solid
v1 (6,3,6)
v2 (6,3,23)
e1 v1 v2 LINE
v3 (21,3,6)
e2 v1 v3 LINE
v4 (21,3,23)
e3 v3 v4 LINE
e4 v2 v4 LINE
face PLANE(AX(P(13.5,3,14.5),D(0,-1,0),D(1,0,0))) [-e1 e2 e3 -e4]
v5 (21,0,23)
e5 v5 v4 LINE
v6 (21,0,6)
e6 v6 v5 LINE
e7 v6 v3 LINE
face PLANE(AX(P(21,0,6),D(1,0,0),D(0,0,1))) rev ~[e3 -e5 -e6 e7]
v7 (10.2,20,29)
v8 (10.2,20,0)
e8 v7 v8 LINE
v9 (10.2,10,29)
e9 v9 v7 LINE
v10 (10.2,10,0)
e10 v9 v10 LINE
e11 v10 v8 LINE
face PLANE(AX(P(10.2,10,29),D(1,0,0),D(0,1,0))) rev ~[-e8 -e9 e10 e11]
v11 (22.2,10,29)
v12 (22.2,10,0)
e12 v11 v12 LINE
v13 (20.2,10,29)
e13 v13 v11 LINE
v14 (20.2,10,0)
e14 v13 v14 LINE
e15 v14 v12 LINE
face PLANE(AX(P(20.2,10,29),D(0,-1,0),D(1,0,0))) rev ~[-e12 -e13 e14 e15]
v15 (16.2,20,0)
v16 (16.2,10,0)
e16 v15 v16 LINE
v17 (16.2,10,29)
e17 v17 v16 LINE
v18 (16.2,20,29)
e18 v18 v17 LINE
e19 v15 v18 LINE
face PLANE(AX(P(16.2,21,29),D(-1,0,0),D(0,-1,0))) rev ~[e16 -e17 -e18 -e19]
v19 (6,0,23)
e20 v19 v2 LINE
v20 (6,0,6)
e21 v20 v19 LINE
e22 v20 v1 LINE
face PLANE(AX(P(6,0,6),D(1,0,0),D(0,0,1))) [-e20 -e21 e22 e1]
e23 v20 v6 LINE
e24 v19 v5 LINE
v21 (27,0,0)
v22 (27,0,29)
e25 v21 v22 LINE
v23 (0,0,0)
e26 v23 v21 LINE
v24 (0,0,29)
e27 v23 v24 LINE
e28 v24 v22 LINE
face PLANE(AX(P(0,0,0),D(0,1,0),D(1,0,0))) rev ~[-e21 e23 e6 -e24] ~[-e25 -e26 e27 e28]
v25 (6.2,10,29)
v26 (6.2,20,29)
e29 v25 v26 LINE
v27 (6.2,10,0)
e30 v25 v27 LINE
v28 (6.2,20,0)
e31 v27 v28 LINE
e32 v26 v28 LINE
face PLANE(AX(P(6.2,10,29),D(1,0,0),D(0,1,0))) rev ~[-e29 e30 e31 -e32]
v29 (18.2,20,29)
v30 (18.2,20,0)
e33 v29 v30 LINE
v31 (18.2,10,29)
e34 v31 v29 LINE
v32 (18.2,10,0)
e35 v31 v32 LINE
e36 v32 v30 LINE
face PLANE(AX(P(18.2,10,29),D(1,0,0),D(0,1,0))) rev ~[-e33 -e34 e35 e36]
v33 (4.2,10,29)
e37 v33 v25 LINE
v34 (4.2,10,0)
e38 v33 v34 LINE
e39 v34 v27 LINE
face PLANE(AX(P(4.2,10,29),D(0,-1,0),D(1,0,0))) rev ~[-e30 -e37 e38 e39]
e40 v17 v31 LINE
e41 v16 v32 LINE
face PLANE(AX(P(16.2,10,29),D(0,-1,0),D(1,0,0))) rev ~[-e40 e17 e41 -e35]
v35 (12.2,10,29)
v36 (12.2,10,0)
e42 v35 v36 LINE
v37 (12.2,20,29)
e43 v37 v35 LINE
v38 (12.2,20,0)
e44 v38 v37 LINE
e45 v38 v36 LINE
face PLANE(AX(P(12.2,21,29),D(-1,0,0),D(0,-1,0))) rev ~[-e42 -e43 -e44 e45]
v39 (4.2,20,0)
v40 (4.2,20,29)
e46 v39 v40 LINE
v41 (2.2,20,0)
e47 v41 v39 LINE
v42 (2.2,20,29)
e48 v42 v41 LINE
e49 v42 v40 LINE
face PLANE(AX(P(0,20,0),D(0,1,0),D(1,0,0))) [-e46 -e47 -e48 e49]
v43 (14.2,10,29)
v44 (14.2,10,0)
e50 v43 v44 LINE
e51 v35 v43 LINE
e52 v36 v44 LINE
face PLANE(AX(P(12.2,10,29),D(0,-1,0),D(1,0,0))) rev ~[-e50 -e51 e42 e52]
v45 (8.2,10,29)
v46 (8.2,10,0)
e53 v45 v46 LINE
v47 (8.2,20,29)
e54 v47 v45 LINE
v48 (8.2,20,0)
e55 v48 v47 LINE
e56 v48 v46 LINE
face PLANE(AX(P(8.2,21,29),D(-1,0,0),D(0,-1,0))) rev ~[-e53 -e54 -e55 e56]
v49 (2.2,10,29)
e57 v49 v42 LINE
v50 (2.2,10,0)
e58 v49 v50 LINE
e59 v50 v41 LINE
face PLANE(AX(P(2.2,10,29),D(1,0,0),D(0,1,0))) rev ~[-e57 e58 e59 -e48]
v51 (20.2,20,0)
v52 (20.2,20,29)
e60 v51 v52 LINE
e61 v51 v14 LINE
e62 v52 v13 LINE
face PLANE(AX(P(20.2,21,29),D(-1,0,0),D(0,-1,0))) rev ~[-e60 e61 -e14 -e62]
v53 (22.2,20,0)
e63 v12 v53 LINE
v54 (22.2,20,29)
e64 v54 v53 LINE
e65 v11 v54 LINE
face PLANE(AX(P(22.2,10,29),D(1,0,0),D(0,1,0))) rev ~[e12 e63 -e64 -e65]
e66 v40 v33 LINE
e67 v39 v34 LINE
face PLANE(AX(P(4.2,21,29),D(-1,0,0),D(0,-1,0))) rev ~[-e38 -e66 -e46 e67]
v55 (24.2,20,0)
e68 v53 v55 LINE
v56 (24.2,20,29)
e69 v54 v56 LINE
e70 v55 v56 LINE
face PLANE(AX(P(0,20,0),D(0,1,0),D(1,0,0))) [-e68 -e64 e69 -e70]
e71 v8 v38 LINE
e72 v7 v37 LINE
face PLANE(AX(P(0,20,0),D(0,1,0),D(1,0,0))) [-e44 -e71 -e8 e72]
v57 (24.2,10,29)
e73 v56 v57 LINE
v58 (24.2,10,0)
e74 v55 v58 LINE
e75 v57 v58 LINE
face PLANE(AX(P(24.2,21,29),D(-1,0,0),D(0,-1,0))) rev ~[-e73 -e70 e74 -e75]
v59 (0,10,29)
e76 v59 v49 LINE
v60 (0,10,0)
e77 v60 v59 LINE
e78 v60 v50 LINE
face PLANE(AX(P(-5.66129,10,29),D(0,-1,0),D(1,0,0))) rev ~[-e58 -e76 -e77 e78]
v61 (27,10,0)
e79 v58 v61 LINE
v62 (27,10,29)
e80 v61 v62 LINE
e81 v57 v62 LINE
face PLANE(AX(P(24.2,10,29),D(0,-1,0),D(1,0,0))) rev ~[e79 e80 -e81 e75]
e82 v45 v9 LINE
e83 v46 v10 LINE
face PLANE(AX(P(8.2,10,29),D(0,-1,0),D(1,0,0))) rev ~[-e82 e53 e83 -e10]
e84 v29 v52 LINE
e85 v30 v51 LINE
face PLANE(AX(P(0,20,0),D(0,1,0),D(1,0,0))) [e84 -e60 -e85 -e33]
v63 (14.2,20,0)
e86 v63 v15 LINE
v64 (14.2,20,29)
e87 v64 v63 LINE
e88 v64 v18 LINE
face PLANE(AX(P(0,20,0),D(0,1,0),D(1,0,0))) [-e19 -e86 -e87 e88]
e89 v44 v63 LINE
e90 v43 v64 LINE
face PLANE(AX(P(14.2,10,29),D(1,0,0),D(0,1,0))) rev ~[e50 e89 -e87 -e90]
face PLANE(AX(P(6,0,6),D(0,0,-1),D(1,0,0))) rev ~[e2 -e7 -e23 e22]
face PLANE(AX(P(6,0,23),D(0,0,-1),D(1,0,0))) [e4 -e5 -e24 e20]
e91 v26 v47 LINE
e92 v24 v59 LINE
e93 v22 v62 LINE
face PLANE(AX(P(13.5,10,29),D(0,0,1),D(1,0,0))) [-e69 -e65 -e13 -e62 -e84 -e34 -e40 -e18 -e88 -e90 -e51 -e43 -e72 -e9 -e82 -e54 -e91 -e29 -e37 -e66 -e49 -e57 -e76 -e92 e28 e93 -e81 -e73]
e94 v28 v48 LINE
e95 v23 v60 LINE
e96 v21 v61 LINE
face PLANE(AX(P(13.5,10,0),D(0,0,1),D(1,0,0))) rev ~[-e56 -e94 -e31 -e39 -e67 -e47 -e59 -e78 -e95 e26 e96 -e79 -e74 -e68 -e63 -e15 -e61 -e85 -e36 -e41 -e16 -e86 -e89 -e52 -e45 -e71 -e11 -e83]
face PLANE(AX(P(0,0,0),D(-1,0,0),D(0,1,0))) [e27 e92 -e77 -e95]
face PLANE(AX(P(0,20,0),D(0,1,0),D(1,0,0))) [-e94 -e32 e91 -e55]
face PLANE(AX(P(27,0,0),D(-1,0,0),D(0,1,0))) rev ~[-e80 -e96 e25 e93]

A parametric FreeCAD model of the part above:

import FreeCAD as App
import Part
import Sketcher
from FreeCAD import Vector
Q = App.Units.Quantity


def add_polygon(sketch, points):
    """Adds a closed chain of lines whose ends are joined by coincident constraints."""
    first, n = sketch.GeometryCount, len(points)
    for a, b in zip(points, points[1:] + points[:1]):
        sketch.addGeometry(Part.LineSegment(App.Vector(*a, 0), App.Vector(*b, 0)), False)
    for i in range(n):
        sketch.addConstraint(Sketcher.Constraint("Coincident", first + i, 2, first + (i + 1) % n, 1))

doc = App.newDocument("Part")
body = doc.addObject("PartDesign::Body", "Body")

# Sketch on XY plane
sketch1 = doc.addObject("Sketcher::SketchObject", "Sketch")
body.addObject(sketch1)
sketch1.AttachmentSupport = (doc.XY_Plane, [""])
sketch1.MapMode = "FlatFace"
add_polygon(sketch1, [(0, 20), (0, 0), (27, 0), (27, 20)])  # lines 0-3
sketch1.addConstraint([
    Sketcher.Constraint("Vertical", 0),
    Sketcher.Constraint("Horizontal", 1),
    Sketcher.Constraint("Vertical", 2),
    Sketcher.Constraint("Horizontal", 3),
    Sketcher.Constraint("Coincident", 0, 2, -1, 1),
    Sketcher.Constraint("DistanceX", 1, 1, 1, 2, Q("27 mm")),
    Sketcher.Constraint("DistanceY", 0, 2, 0, 1, Q("20 mm")),
])
pad1 = doc.addObject("PartDesign::Pad", "Pad")
body.addObject(pad1)
pad1.Profile = sketch1
pad1.Length = 29

# Sketch on XY plane
sketch2 = doc.addObject("Sketcher::SketchObject", "Sketch001")
body.addObject(sketch2)
sketch2.AttachmentSupport = (doc.XY_Plane, [""])
sketch2.MapMode = "FlatFace"
sketch2.AttachmentOffset = App.Placement(Vector(0, 0, 29), App.Rotation())
add_polygon(sketch2, [(-5.87794, 25.212042), (-5.66129, 10), (2.2, 10), (2.2, 21), (4.2, 21), (4.2, 10), (6.2, 10), (6.2, 21), (8.2, 21), (8.2, 10), (10.2, 10), (10.2, 21), (12.2, 21), (12.2, 10), (14.2, 10), (14.2, 21), (16.2, 21), (16.2, 10), (18.2, 10), (18.2, 21), (20.2, 21), (20.2, 10), (22.2, 10), (22.2, 21), (24.2, 21), (24.2, 10), (30.417973, 10), (30.417973, 25.212042)])  # lines 0-27
sketch2.addConstraint([
    Sketcher.Constraint("Horizontal", 1),
    Sketcher.Constraint("Vertical", 2),
    Sketcher.Constraint("Horizontal", 3),
    Sketcher.Constraint("Vertical", 4),
    Sketcher.Constraint("Horizontal", 5),
    Sketcher.Constraint("Vertical", 6),
    Sketcher.Constraint("Horizontal", 7),
    Sketcher.Constraint("Vertical", 8),
    Sketcher.Constraint("Horizontal", 9),
    Sketcher.Constraint("Vertical", 10),
    Sketcher.Constraint("Horizontal", 11),
    Sketcher.Constraint("Vertical", 12),
    Sketcher.Constraint("Horizontal", 13),
    Sketcher.Constraint("Vertical", 14),
    Sketcher.Constraint("Horizontal", 15),
    Sketcher.Constraint("Vertical", 16),
    Sketcher.Constraint("Horizontal", 17),
    Sketcher.Constraint("Vertical", 18),
    Sketcher.Constraint("Horizontal", 19),
    Sketcher.Constraint("Vertical", 20),
    Sketcher.Constraint("Horizontal", 21),
    Sketcher.Constraint("Vertical", 22),
    Sketcher.Constraint("Horizontal", 23),
    Sketcher.Constraint("Vertical", 24),
    Sketcher.Constraint("Horizontal", 25),
    Sketcher.Constraint("Vertical", 26),
    Sketcher.Constraint("Horizontal", 27),
    Sketcher.Constraint("Horizontal", 1, 2, 4, 2),
    Sketcher.Constraint("Horizontal", 3, 2, 6, 2),
    Sketcher.Constraint("Horizontal", 5, 2, 8, 2),
    Sketcher.Constraint("Horizontal", 7, 2, 10, 2),
    Sketcher.Constraint("Horizontal", 9, 2, 12, 2),
    Sketcher.Constraint("Horizontal", 11, 2, 14, 2),
    Sketcher.Constraint("Horizontal", 13, 2, 16, 2),
    Sketcher.Constraint("Horizontal", 15, 2, 18, 2),
    Sketcher.Constraint("Horizontal", 17, 2, 20, 2),
    Sketcher.Constraint("Horizontal", 19, 2, 22, 2),
    Sketcher.Constraint("Horizontal", 21, 2, 24, 2),
    Sketcher.Constraint("Equal", 3, 5),
    Sketcher.Constraint("Equal", 5, 7),
    Sketcher.Constraint("Equal", 7, 9),
    Sketcher.Constraint("Equal", 9, 11),
    Sketcher.Constraint("Equal", 11, 13),
    Sketcher.Constraint("Equal", 13, 15),
    Sketcher.Constraint("Equal", 15, 17),
    Sketcher.Constraint("Equal", 17, 19),
    Sketcher.Constraint("Equal", 19, 21),
    Sketcher.Constraint("Equal", 21, 23),
    Sketcher.Constraint("DistanceX", 3, 1, 3, 2, Q("2 mm")),
    Sketcher.Constraint("DistanceY", 2, 1, 2, 2, Q("11 mm")),
    Sketcher.Constraint("DistanceY", -1, 1, 0, 2, Q("10 mm")),
    Sketcher.Constraint("DistanceX", -1, 1, 1, 2, Q("2.2 mm")),
    Sketcher.Constraint("DistanceX", 1, 1, 1, 2, Q("7.86129 mm")),
    Sketcher.Constraint("DistanceX", 25, 1, 25, 2, Q("6.217973 mm")),
    Sketcher.Constraint("DistanceX", 27, 2, 27, 1, Q("36.295913 mm")),
    Sketcher.Constraint("DistanceY", 26, 1, 26, 2, Q("15.212042 mm")),
])
pocket1 = doc.addObject("PartDesign::Pocket", "Pocket")
body.addObject(pocket1)
pocket1.Profile = sketch2
pocket1.Type = "ThroughAll"

# Sketch on XZ plane
sketch3 = doc.addObject("Sketcher::SketchObject", "Sketch002")
body.addObject(sketch3)
sketch3.AttachmentSupport = (doc.XZ_Plane, [""])
sketch3.MapMode = "FlatFace"
add_polygon(sketch3, [(6, 23), (6, 6), (21, 6), (21, 23)])  # lines 0-3
sketch3.addConstraint([
    Sketcher.Constraint("Vertical", 0),
    Sketcher.Constraint("Horizontal", 1),
    Sketcher.Constraint("Vertical", 2),
    Sketcher.Constraint("Horizontal", 3),
    Sketcher.Constraint("DistanceX", 1, 1, 1, 2, Q("15 mm")),
    Sketcher.Constraint("DistanceY", 0, 2, 0, 1, Q("17 mm")),
    Sketcher.Constraint("DistanceX", -1, 1, 0, 2, Q("6 mm")),
    Sketcher.Constraint("DistanceY", -1, 1, 0, 2, Q("6 mm")),
])
pocket2 = doc.addObject("PartDesign::Pocket", "Pocket001")
body.addObject(pocket2)
pocket2.Profile = sketch3
pocket2.Length = 3

doc.recompute()
